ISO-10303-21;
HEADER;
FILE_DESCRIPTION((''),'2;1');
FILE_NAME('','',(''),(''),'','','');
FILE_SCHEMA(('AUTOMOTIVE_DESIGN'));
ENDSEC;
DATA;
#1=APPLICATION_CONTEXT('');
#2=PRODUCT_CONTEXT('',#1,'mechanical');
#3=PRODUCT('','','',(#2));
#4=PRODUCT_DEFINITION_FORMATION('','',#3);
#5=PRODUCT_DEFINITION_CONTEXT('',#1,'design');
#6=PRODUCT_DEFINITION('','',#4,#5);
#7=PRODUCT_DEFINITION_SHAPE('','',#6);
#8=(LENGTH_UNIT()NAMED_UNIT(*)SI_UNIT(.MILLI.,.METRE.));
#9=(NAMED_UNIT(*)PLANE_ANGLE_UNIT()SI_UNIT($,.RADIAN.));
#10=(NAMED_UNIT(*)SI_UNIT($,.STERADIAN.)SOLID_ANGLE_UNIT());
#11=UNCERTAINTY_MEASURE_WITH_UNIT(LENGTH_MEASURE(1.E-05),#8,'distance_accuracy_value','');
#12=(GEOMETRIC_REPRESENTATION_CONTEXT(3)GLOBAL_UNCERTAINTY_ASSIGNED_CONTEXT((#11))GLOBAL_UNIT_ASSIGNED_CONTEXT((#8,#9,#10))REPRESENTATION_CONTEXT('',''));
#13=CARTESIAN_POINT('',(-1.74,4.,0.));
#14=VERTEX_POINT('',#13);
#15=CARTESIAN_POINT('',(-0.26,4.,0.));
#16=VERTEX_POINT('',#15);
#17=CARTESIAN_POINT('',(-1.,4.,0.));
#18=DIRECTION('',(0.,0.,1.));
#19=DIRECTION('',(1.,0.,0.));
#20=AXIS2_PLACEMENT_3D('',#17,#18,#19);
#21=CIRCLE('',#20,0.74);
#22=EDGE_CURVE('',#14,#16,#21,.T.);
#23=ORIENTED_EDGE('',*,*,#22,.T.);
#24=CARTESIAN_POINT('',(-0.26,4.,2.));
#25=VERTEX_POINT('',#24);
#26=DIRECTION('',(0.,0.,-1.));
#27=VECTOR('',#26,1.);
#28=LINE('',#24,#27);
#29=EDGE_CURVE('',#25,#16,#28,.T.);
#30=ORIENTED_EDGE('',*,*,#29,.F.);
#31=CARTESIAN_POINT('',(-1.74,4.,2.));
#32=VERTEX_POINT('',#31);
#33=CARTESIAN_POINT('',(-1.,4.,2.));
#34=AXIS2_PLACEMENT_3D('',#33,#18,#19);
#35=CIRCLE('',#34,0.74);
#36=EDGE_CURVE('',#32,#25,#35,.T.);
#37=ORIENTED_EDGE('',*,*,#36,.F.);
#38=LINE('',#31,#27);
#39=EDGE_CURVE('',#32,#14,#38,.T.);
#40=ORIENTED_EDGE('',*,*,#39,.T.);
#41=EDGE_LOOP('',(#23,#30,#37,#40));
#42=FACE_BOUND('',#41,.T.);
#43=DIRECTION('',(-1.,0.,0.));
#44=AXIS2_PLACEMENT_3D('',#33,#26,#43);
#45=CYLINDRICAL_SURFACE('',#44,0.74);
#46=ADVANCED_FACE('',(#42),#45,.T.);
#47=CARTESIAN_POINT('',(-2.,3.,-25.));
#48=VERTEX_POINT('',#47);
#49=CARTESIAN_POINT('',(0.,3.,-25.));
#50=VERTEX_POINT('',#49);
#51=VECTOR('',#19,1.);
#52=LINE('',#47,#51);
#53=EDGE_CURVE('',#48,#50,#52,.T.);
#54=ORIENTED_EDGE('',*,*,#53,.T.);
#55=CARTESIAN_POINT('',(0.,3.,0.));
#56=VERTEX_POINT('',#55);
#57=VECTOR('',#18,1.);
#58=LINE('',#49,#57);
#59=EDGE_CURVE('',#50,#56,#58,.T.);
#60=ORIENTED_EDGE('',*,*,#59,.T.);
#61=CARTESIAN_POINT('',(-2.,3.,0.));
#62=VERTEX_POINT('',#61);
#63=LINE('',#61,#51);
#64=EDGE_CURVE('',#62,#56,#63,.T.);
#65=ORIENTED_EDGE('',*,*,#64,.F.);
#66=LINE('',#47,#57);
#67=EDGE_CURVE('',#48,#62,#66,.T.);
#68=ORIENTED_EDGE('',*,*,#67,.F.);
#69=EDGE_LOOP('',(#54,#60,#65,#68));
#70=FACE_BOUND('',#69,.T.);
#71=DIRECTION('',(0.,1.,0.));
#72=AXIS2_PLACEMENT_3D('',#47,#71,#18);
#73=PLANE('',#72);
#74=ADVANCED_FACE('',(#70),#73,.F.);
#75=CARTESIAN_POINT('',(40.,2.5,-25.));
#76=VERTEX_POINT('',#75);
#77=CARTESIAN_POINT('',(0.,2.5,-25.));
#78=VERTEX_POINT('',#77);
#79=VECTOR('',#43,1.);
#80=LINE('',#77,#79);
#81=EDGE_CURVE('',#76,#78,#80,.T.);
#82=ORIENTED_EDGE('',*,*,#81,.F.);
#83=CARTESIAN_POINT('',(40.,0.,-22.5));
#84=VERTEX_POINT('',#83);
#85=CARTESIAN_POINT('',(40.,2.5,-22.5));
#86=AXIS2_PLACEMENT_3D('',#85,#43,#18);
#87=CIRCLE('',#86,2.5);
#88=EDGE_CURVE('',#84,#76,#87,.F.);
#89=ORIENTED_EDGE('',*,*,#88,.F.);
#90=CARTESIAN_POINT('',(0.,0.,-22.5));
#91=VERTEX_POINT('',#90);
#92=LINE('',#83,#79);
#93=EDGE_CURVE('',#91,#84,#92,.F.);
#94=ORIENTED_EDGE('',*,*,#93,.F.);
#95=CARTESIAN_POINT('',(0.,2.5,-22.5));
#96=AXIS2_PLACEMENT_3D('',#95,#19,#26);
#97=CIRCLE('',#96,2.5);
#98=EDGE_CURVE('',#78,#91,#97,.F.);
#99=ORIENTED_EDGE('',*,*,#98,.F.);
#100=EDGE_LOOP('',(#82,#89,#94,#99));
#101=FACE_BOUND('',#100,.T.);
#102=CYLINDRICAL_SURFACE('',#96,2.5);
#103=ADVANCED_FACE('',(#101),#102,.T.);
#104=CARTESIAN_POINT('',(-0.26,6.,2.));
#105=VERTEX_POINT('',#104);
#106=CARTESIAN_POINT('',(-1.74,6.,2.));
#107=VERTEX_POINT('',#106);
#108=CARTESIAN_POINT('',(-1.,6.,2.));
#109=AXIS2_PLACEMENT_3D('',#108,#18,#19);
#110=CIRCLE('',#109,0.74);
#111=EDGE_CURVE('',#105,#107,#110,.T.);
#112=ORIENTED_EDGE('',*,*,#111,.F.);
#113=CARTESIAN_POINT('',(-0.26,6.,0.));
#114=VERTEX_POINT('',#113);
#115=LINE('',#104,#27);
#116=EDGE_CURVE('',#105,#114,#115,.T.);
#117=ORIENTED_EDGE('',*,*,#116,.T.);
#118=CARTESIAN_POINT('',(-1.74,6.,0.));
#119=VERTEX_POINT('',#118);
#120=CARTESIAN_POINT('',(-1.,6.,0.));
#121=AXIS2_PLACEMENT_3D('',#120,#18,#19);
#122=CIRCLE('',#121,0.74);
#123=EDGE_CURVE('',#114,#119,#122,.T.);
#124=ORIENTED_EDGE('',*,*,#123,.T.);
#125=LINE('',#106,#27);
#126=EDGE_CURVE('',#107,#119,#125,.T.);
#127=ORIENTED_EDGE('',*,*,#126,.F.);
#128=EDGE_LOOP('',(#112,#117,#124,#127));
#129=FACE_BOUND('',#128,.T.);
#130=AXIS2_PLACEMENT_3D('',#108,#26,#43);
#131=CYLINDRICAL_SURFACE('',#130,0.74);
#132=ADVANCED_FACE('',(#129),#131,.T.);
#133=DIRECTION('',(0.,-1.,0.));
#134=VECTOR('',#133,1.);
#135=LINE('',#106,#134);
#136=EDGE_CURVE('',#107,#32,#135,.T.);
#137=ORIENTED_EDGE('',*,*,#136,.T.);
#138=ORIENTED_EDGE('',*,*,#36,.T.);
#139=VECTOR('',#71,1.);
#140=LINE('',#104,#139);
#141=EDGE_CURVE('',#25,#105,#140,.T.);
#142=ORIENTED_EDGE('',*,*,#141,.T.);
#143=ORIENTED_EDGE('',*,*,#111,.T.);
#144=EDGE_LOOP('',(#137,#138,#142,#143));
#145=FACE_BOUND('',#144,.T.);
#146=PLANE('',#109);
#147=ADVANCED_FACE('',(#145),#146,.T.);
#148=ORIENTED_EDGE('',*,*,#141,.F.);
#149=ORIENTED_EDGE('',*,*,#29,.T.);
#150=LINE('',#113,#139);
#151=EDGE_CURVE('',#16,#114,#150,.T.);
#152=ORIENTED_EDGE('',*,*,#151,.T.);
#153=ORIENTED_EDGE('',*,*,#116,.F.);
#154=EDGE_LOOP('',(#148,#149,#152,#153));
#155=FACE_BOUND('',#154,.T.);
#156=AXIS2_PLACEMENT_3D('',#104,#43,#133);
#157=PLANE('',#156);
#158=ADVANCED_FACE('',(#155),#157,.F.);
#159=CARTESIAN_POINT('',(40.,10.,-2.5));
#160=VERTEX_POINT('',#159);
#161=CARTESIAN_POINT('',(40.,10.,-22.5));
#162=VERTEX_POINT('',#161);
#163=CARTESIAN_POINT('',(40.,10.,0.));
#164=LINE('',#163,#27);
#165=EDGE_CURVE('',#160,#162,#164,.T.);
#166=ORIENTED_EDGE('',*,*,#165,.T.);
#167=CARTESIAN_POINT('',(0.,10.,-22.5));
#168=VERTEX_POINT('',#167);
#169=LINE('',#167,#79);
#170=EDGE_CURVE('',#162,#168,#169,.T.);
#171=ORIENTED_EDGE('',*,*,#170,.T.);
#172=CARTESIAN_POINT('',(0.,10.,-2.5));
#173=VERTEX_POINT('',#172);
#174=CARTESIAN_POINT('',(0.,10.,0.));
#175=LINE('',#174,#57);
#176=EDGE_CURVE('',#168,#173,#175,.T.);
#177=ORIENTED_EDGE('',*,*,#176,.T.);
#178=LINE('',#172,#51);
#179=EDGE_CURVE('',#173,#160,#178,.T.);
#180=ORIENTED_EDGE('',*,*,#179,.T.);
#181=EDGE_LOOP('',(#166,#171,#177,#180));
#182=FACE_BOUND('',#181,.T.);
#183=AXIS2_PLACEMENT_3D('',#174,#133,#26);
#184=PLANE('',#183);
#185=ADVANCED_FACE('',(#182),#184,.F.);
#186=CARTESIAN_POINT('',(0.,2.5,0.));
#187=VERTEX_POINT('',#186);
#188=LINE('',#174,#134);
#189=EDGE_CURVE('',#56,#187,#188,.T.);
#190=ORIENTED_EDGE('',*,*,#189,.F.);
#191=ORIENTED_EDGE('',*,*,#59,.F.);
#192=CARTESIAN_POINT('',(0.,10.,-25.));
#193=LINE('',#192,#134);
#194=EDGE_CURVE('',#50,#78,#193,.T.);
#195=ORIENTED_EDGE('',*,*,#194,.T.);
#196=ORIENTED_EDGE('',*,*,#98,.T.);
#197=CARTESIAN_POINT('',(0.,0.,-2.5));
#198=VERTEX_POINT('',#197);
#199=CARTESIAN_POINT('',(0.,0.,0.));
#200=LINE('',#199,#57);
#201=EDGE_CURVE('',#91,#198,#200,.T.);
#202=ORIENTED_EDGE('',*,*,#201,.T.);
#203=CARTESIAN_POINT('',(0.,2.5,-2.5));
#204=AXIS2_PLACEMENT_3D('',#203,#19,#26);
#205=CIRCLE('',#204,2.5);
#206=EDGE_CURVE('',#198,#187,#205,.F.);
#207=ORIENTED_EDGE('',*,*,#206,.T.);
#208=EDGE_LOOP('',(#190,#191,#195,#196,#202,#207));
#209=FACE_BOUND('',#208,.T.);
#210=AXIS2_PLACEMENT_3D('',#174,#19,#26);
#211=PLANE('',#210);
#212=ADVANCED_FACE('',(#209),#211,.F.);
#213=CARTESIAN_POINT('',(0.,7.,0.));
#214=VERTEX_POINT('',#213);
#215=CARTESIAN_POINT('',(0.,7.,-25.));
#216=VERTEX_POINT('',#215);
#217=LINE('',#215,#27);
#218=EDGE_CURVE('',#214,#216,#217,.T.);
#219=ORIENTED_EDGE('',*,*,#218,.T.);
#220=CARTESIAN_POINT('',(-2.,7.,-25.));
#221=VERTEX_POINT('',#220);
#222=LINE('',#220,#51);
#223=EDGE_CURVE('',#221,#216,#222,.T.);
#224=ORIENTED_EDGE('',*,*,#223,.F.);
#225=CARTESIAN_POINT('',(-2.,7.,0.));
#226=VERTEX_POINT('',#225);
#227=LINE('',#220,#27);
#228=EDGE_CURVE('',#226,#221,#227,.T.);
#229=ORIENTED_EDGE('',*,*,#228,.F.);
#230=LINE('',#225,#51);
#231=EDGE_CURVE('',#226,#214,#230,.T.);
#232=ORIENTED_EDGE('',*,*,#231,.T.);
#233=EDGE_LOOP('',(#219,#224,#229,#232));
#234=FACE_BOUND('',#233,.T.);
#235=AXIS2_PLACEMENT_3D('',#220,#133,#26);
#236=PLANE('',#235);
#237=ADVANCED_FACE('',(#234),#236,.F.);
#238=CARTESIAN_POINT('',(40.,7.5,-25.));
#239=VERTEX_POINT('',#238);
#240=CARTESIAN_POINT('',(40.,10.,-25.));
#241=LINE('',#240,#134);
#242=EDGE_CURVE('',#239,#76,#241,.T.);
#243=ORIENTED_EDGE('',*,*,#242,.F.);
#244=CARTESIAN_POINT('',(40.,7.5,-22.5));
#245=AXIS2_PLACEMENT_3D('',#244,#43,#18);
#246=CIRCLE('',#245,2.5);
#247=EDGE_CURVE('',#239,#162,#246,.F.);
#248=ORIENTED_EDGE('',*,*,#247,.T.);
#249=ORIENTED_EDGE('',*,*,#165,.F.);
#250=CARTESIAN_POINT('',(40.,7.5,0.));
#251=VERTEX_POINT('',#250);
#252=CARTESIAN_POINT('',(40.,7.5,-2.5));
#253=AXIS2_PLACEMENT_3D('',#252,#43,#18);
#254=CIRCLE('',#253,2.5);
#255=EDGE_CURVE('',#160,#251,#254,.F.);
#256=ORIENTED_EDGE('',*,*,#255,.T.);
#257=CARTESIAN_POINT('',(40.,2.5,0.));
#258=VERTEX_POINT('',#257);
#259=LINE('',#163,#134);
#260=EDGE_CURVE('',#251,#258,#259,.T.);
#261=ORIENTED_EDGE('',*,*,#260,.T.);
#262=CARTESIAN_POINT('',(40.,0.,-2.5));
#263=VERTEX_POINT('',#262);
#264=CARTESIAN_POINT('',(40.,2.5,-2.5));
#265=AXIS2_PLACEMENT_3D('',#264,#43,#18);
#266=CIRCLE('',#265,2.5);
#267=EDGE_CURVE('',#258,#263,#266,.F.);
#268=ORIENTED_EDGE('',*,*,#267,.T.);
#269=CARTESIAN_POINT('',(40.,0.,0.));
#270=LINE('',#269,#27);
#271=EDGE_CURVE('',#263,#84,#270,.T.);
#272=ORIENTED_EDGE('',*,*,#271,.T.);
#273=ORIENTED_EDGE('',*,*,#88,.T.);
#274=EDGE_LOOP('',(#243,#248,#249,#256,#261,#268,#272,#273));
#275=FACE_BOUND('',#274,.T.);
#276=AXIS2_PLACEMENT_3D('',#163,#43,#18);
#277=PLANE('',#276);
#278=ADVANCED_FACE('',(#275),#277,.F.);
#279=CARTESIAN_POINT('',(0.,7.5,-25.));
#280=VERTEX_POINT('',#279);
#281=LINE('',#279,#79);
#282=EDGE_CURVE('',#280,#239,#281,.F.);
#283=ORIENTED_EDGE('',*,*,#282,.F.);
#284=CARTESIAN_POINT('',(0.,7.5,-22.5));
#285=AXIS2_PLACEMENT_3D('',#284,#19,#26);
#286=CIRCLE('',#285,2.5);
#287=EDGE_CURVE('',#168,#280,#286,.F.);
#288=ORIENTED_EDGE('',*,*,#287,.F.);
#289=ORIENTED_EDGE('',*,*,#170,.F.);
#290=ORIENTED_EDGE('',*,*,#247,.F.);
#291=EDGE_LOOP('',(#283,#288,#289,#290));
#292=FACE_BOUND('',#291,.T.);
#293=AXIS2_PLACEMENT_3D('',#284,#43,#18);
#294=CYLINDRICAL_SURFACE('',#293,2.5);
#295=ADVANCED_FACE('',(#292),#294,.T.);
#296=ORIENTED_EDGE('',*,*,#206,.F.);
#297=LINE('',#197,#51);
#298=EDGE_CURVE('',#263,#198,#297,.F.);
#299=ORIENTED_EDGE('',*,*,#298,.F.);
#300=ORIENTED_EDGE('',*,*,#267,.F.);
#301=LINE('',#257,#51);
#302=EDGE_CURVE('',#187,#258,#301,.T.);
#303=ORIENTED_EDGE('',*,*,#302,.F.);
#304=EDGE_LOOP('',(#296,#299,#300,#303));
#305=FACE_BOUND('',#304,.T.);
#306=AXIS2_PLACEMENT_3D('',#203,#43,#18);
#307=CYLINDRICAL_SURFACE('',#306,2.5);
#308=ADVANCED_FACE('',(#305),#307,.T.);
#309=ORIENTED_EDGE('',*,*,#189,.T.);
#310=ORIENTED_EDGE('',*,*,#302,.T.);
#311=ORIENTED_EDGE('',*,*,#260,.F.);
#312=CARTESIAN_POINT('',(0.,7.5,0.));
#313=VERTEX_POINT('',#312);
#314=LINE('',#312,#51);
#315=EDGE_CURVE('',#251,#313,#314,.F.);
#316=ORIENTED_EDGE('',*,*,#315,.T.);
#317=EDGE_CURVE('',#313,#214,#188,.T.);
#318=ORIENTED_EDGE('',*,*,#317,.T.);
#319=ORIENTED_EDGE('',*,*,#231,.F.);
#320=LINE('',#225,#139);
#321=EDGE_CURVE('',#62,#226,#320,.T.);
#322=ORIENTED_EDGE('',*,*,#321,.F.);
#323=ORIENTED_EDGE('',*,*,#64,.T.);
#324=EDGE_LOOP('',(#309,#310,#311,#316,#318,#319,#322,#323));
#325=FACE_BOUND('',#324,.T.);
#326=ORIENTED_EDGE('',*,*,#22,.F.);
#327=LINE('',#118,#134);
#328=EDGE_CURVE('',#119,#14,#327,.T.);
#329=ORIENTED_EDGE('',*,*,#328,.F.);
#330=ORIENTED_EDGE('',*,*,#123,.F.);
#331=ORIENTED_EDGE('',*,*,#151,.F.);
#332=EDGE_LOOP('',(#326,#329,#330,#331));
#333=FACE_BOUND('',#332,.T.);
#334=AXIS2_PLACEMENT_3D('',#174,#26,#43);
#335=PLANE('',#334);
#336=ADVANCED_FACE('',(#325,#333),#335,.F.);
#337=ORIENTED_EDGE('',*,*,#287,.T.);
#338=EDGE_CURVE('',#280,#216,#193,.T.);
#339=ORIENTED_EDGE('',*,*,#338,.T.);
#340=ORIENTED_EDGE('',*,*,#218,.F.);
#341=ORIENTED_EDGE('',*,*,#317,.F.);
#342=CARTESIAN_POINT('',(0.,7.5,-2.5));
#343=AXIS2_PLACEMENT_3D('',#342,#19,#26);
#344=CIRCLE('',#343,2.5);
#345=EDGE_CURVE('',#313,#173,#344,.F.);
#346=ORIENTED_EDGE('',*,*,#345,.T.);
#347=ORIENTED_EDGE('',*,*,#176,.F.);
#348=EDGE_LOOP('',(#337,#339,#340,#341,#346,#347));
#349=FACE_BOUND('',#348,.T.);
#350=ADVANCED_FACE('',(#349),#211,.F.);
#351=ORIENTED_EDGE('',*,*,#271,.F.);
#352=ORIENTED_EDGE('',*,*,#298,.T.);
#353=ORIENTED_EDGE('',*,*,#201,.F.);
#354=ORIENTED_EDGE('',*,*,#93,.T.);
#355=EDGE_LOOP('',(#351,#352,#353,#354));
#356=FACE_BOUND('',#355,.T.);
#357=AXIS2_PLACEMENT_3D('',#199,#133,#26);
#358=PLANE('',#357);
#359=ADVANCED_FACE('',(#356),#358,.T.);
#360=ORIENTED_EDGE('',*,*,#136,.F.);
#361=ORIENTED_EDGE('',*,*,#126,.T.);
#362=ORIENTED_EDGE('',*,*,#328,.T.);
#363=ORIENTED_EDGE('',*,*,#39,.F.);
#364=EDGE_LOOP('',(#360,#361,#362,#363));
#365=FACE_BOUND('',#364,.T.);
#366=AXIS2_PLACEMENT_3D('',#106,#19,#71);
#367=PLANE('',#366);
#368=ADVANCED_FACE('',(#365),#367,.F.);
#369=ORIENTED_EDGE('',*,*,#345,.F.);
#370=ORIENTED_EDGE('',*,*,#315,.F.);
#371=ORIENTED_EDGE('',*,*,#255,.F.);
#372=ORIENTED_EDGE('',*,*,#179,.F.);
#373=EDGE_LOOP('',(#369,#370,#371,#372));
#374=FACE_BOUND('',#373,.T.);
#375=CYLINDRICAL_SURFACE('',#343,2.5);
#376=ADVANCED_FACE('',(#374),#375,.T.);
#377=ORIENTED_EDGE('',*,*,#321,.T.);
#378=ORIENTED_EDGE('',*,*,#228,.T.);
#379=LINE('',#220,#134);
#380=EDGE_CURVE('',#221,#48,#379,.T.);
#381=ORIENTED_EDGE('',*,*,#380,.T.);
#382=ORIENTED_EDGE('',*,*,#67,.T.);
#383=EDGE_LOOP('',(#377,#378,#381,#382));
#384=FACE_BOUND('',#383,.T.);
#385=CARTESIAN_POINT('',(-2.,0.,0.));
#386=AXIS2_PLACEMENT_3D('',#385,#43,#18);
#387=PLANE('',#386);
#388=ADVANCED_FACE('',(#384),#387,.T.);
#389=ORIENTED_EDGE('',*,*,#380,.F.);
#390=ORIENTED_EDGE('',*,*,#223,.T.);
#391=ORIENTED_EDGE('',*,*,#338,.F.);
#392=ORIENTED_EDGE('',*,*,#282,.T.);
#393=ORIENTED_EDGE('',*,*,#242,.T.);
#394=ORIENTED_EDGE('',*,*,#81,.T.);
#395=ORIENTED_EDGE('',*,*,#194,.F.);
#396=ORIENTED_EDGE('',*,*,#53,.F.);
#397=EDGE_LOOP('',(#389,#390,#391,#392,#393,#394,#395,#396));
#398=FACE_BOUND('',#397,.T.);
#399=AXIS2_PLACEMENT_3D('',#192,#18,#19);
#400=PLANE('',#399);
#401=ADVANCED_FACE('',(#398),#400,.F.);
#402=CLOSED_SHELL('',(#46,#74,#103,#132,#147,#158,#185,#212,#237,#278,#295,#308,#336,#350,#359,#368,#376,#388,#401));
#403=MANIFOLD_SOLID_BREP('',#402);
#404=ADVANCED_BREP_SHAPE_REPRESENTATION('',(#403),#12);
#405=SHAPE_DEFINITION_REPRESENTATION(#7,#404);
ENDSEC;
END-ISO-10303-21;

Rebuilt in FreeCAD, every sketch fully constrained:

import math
import FreeCAD as App
import Part
import Sketcher

V = App.Vector


def edges_at(feature, points):
    """Names of the edges that pass closest to the given points."""
    edges = feature.Shape.Edges
    near = lambda p: min(range(len(edges)), key=lambda i: edges[i].distToShape(Part.Vertex(*p))[0])
    return sorted({f"Edge{near(p) + 1}" for p in points})


def add_polygon(sketch, points):
    """Adds a closed chain of lines whose ends are joined by coincident constraints."""
    first, n = sketch.GeometryCount, len(points)
    for a, b in zip(points, points[1:] + points[:1]):
        sketch.addGeometry(Part.LineSegment(App.Vector(*a, 0), App.Vector(*b, 0)), False)
    for i in range(n):
        sketch.addConstraint(Sketcher.Constraint("Coincident", first + i, 2, first + (i + 1) % n, 1))

doc = App.newDocument("Part")
body = doc.addObject("PartDesign::Body", "Body")

sketch1 = doc.addObject("Sketcher::SketchObject", "Sketch")
body.addObject(sketch1)
sketch1.AttachmentSupport = (doc.XZ_Plane, [""])
sketch1.MapMode = "FlatFace"
add_polygon(sketch1, [(0, -25), (0, 0), (40, 0), (40, -25)])
sketch1.addConstraint(Sketcher.Constraint("Vertical", 0))
sketch1.addConstraint(Sketcher.Constraint("Horizontal", 1))
sketch1.addConstraint(Sketcher.Constraint("Vertical", 2))
sketch1.addConstraint(Sketcher.Constraint("Horizontal", 3))
sketch1.addConstraint(Sketcher.Constraint("Coincident", 0, 2, -1, 1))
sketch1.addConstraint(Sketcher.Constraint("DistanceX", 1, 1, 1, 2, 40.0))
sketch1.addConstraint(Sketcher.Constraint("DistanceY", 0, 1, 0, 2, 25.0))
pad1 = doc.addObject("PartDesign::Pad", "Pad")
body.addObject(pad1)
pad1.Profile = sketch1
pad1.Length = 10
pad1.Reversed = True
doc.recompute()

fillet = doc.addObject("PartDesign::Fillet", "Fillet")
body.addObject(fillet)
fillet.Base = (pad1, edges_at(pad1, [
    (20, 10, -25),
    (20, 0, -25),
    (20, 0, 0),
    (20, 10, 0),
]))
fillet.Radius = 2.5

sketch2 = doc.addObject("Sketcher::SketchObject", "Sketch001")
body.addObject(sketch2)
sketch2.AttachmentSupport = (doc.YZ_Plane, [""])
sketch2.MapMode = "FlatFace"
add_polygon(sketch2, [(7, -25), (3, -25), (3, 0), (7, 0)])
sketch2.addConstraint(Sketcher.Constraint("Horizontal", 0))
sketch2.addConstraint(Sketcher.Constraint("Vertical", 1))
sketch2.addConstraint(Sketcher.Constraint("Horizontal", 2))
sketch2.addConstraint(Sketcher.Constraint("Vertical", 3))
sketch2.addConstraint(Sketcher.Constraint("PointOnObject", 1, 2, -1))
sketch2.addConstraint(Sketcher.Constraint("DistanceX", 0, 2, 0, 1, 4.0))
sketch2.addConstraint(Sketcher.Constraint("DistanceY", 1, 1, 1, 2, 25.0))
sketch2.addConstraint(Sketcher.Constraint("DistanceX", -1, 1, 0, 2, 3.0))
pad2 = doc.addObject("PartDesign::Pad", "Pad001")
body.addObject(pad2)
pad2.Profile = sketch2
pad2.Length = 2
pad2.Reversed = True

sketch3 = doc.addObject("Sketcher::SketchObject", "Sketch002")
body.addObject(sketch3)
sketch3.AttachmentSupport = (doc.XY_Plane, [""])
sketch3.MapMode = "FlatFace"
sketch3.addGeometry(Part.LineSegment(V(-0.3, 4, 0), V(-0.3, 6, 0)), False)
sketch3.addGeometry(Part.ArcOfCircle(Part.Circle(V(-1, 6, 0), V(0, 0, 1), 0.7), math.radians(0), math.radians(180)), False)
sketch3.addGeometry(Part.LineSegment(V(-1.7, 6, 0), V(-1.7, 4, 0)), False)
sketch3.addGeometry(Part.ArcOfCircle(Part.Circle(V(-1, 4, 0), V(0, 0, 1), 0.7), math.radians(180), math.radians(360)), False)
sketch3.addConstraint(Sketcher.Constraint("Tangent", 0, 2, 1, 1))
sketch3.addConstraint(Sketcher.Constraint("Tangent", 1, 2, 2, 1))
sketch3.addConstraint(Sketcher.Constraint("Tangent", 2, 2, 3, 1))
sketch3.addConstraint(Sketcher.Constraint("Tangent", 3, 2, 0, 1))
sketch3.addConstraint(Sketcher.Constraint("Vertical", 0))
sketch3.addConstraint(Sketcher.Constraint("Vertical", 2))
sketch3.addConstraint(Sketcher.Constraint("DistanceY", 0, 1, 0, 2, 2.0))
sketch3.addConstraint(Sketcher.Constraint("Radius", 1, 0.74))
sketch3.addConstraint(Sketcher.Constraint("DistanceX", 1, 3, -1, 1, 1.0))
sketch3.addConstraint(Sketcher.Constraint("DistanceY", -1, 1, 1, 3, 6.0))
pad3 = doc.addObject("PartDesign::Pad", "Pad002")
body.addObject(pad3)
pad3.Profile = sketch3
pad3.Length = 2

doc.recompute()
